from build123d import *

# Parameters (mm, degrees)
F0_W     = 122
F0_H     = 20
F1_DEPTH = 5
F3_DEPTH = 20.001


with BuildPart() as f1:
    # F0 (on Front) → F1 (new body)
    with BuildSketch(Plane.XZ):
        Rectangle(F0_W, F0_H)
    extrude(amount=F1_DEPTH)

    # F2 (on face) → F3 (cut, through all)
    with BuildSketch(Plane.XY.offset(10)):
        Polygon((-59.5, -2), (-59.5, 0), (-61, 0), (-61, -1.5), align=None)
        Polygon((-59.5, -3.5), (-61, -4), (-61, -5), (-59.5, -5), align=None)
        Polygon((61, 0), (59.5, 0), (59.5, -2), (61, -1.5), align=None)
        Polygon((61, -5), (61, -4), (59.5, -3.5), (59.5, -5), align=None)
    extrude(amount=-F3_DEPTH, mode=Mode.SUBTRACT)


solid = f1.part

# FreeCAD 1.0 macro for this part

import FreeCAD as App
import Part
import Sketcher

doc = App.newDocument("Part")
params = doc.addObject("Spreadsheet::Sheet", "Params")
for row, (alias, value) in enumerate([
    ("sketch1_width", "122 mm"),
    ("sketch1_height", "20 mm"),
    ("pad1_length", "5 mm"),
    ("sketch2_height", "2 mm"),
    ("sketch2_height2", "1 mm"),
], start=1):
    params.set(f"A{row}", alias)
    params.set(f"B{row}", "=" + value)
    params.setAlias(f"B{row}", alias)

body = doc.addObject("PartDesign::Body", "Body")

sketch1 = body.newObject("Sketcher::SketchObject", "Sketch")
sketch1.AttachmentSupport = (doc.getObject("XZ_Plane"), [""])
sketch1.MapMode = "FlatFace"
sketch1.addGeometry([
    Part.LineSegment(App.Vector(-61, 10, 0), App.Vector(-61, -10, 0)),
    Part.LineSegment(App.Vector(-61, -10, 0), App.Vector(61, -10, 0)),
    Part.LineSegment(App.Vector(61, -10, 0), App.Vector(61, 10, 0)),
    Part.LineSegment(App.Vector(61, 10, 0), App.Vector(-61, 10, 0)),
], False)
sketch1.addConstraint([
    Sketcher.Constraint("Coincident", 0, 2, 1, 1),
    Sketcher.Constraint("Coincident", 1, 2, 2, 1),
    Sketcher.Constraint("Coincident", 2, 2, 3, 1),
    Sketcher.Constraint("Coincident", 3, 2, 0, 1),
    Sketcher.Constraint("Vertical", 0),
    Sketcher.Constraint("Horizontal", 1),
    Sketcher.Constraint("Vertical", 2),
    Sketcher.Constraint("Horizontal", 3),
    Sketcher.Constraint("Symmetric", 0, 2, 2, 2, -1, 1),
    Sketcher.Constraint("DistanceX", 1, 1, 1, 2, 122.0),
    Sketcher.Constraint("DistanceY", 0, 2, 0, 1, 20.0),
])
sketch1.setExpression("Constraints[9]", "Params.sketch1_width")
sketch1.setExpression("Constraints[10]", "Params.sketch1_height")
pad1 = body.newObject("PartDesign::Pad", "Pad")
pad1.Profile = sketch1
pad1.setExpression("Length", "Params.pad1_length")

sketch2 = body.newObject("Sketcher::SketchObject", "Sketch001")
sketch2.AttachmentSupport = (doc.getObject("XY_Plane"), [""])
sketch2.MapMode = "FlatFace"
sketch2.AttachmentOffset = App.Placement(App.Vector(0, 0, 10), App.Rotation())
sketch2.addGeometry([
    Part.LineSegment(App.Vector(-59.5, -2, 0), App.Vector(-59.5, 0, 0)),
    Part.LineSegment(App.Vector(-59.5, 0, 0), App.Vector(-61, 0, 0)),
    Part.LineSegment(App.Vector(-61, 0, 0), App.Vector(-61, -1.5, 0)),
    Part.LineSegment(App.Vector(-61, -1.5, 0), App.Vector(-59.5, -2, 0)),
    Part.LineSegment(App.Vector(-59.5, -3.5, 0), App.Vector(-61, -4, 0)),
    Part.LineSegment(App.Vector(-61, -4, 0), App.Vector(-61, -5, 0)),
    Part.LineSegment(App.Vector(-61, -5, 0), App.Vector(-59.5, -5, 0)),
    Part.LineSegment(App.Vector(-59.5, -5, 0), App.Vector(-59.5, -3.5, 0)),
    Part.LineSegment(App.Vector(61, 0, 0), App.Vector(59.5, 0, 0)),
    Part.LineSegment(App.Vector(59.5, 0, 0), App.Vector(59.5, -2, 0)),
    Part.LineSegment(App.Vector(59.5, -2, 0), App.Vector(61, -1.5, 0)),
    Part.LineSegment(App.Vector(61, -1.5, 0), App.Vector(61, 0, 0)),
    Part.LineSegment(App.Vector(61, -5, 0), App.Vector(61, -4, 0)),
    Part.LineSegment(App.Vector(61, -4, 0), App.Vector(59.5, -3.5, 0)),
    Part.LineSegment(App.Vector(59.5, -3.5, 0), App.Vector(59.5, -5, 0)),
    Part.LineSegment(App.Vector(59.5, -5, 0), App.Vector(61, -5, 0)),
], False)
sketch2.addConstraint([
    Sketcher.Constraint("Coincident", 0, 2, 1, 1),
    Sketcher.Constraint("Coincident", 1, 2, 2, 1),
    Sketcher.Constraint("Coincident", 2, 2, 3, 1),
    Sketcher.Constraint("Coincident", 3, 2, 0, 1),
    Sketcher.Constraint("Coincident", 4, 2, 5, 1),
    Sketcher.Constraint("Coincident", 5, 2, 6, 1),
    Sketcher.Constraint("Coincident", 6, 2, 7, 1),
    Sketcher.Constraint("Coincident", 7, 2, 4, 1),
    Sketcher.Constraint("Coincident", 8, 2, 9, 1),
    Sketcher.Constraint("Coincident", 9, 2, 10, 1),
    Sketcher.Constraint("Coincident", 10, 2, 11, 1),
    Sketcher.Constraint("Coincident", 11, 2, 8, 1),
    Sketcher.Constraint("Coincident", 12, 2, 13, 1),
    Sketcher.Constraint("Coincident", 13, 2, 14, 1),
    Sketcher.Constraint("Coincident", 14, 2, 15, 1),
    Sketcher.Constraint("Coincident", 15, 2, 12, 1),
    Sketcher.Constraint("Vertical", 0),
    Sketcher.Constraint("Horizontal", 1),
    Sketcher.Constraint("Vertical", 2),
    Sketcher.Constraint("Vertical", 5),
    Sketcher.Constraint("Horizontal", 6),
    Sketcher.Constraint("Vertical", 7),
    Sketcher.Constraint("Horizontal", 8),
    Sketcher.Constraint("Vertical", 9),
    Sketcher.Constraint("Vertical", 11),
    Sketcher.Constraint("Vertical", 12),
    Sketcher.Constraint("Vertical", 14),
    Sketcher.Constraint("Horizontal", 15),
    Sketcher.Constraint("Symmetric", 0, 2, 8, 2, -1, 1),
    Sketcher.Constraint("Symmetric", 2, 2, 10, 2, -2),
    Sketcher.Constraint("Symmetric", 4, 2, 12, 2, -2),
    Sketcher.Constraint("Symmetric", 7, 2, 13, 2, -2),
    Sketcher.Constraint("PointOnObject", 0, 2, -1),
    Sketcher.Constraint("Parallel", 4, 10),
    Sketcher.Constraint("Parallel", 3, 13),
    Sketcher.Constraint("Horizontal", 6, 2, 14, 2),
    Sketcher.Constraint("Vertical", 2, 2, 4, 2),
    Sketcher.Constraint("Vertical", 3, 2, 6, 2),
    Sketcher.Constraint("Equal", 15, 2),
    Sketcher.Constraint("Equal", 2, 7),
    Sketcher.Constraint("DistanceY", 0, 1, 0, 2, 2.0),
    Sketcher.Constraint("DistanceY", 5, 2, 5, 1, 1.0),
    Sketcher.Constraint("DistanceX", 1, 2, -1, 1, 61.0),
    Sketcher.Constraint("DistanceY", 4, 2, -1, 1, 4.0),
])
sketch2.setExpression("Constraints[40]", "Params.sketch2_height")
sketch2.setExpression("Constraints[41]", "Params.sketch2_height2")
pocket1 = body.newObject("PartDesign::Pocket", "Pocket")
pocket1.Profile = sketch2
pocket1.Type = "ThroughAll"

doc.recompute()
